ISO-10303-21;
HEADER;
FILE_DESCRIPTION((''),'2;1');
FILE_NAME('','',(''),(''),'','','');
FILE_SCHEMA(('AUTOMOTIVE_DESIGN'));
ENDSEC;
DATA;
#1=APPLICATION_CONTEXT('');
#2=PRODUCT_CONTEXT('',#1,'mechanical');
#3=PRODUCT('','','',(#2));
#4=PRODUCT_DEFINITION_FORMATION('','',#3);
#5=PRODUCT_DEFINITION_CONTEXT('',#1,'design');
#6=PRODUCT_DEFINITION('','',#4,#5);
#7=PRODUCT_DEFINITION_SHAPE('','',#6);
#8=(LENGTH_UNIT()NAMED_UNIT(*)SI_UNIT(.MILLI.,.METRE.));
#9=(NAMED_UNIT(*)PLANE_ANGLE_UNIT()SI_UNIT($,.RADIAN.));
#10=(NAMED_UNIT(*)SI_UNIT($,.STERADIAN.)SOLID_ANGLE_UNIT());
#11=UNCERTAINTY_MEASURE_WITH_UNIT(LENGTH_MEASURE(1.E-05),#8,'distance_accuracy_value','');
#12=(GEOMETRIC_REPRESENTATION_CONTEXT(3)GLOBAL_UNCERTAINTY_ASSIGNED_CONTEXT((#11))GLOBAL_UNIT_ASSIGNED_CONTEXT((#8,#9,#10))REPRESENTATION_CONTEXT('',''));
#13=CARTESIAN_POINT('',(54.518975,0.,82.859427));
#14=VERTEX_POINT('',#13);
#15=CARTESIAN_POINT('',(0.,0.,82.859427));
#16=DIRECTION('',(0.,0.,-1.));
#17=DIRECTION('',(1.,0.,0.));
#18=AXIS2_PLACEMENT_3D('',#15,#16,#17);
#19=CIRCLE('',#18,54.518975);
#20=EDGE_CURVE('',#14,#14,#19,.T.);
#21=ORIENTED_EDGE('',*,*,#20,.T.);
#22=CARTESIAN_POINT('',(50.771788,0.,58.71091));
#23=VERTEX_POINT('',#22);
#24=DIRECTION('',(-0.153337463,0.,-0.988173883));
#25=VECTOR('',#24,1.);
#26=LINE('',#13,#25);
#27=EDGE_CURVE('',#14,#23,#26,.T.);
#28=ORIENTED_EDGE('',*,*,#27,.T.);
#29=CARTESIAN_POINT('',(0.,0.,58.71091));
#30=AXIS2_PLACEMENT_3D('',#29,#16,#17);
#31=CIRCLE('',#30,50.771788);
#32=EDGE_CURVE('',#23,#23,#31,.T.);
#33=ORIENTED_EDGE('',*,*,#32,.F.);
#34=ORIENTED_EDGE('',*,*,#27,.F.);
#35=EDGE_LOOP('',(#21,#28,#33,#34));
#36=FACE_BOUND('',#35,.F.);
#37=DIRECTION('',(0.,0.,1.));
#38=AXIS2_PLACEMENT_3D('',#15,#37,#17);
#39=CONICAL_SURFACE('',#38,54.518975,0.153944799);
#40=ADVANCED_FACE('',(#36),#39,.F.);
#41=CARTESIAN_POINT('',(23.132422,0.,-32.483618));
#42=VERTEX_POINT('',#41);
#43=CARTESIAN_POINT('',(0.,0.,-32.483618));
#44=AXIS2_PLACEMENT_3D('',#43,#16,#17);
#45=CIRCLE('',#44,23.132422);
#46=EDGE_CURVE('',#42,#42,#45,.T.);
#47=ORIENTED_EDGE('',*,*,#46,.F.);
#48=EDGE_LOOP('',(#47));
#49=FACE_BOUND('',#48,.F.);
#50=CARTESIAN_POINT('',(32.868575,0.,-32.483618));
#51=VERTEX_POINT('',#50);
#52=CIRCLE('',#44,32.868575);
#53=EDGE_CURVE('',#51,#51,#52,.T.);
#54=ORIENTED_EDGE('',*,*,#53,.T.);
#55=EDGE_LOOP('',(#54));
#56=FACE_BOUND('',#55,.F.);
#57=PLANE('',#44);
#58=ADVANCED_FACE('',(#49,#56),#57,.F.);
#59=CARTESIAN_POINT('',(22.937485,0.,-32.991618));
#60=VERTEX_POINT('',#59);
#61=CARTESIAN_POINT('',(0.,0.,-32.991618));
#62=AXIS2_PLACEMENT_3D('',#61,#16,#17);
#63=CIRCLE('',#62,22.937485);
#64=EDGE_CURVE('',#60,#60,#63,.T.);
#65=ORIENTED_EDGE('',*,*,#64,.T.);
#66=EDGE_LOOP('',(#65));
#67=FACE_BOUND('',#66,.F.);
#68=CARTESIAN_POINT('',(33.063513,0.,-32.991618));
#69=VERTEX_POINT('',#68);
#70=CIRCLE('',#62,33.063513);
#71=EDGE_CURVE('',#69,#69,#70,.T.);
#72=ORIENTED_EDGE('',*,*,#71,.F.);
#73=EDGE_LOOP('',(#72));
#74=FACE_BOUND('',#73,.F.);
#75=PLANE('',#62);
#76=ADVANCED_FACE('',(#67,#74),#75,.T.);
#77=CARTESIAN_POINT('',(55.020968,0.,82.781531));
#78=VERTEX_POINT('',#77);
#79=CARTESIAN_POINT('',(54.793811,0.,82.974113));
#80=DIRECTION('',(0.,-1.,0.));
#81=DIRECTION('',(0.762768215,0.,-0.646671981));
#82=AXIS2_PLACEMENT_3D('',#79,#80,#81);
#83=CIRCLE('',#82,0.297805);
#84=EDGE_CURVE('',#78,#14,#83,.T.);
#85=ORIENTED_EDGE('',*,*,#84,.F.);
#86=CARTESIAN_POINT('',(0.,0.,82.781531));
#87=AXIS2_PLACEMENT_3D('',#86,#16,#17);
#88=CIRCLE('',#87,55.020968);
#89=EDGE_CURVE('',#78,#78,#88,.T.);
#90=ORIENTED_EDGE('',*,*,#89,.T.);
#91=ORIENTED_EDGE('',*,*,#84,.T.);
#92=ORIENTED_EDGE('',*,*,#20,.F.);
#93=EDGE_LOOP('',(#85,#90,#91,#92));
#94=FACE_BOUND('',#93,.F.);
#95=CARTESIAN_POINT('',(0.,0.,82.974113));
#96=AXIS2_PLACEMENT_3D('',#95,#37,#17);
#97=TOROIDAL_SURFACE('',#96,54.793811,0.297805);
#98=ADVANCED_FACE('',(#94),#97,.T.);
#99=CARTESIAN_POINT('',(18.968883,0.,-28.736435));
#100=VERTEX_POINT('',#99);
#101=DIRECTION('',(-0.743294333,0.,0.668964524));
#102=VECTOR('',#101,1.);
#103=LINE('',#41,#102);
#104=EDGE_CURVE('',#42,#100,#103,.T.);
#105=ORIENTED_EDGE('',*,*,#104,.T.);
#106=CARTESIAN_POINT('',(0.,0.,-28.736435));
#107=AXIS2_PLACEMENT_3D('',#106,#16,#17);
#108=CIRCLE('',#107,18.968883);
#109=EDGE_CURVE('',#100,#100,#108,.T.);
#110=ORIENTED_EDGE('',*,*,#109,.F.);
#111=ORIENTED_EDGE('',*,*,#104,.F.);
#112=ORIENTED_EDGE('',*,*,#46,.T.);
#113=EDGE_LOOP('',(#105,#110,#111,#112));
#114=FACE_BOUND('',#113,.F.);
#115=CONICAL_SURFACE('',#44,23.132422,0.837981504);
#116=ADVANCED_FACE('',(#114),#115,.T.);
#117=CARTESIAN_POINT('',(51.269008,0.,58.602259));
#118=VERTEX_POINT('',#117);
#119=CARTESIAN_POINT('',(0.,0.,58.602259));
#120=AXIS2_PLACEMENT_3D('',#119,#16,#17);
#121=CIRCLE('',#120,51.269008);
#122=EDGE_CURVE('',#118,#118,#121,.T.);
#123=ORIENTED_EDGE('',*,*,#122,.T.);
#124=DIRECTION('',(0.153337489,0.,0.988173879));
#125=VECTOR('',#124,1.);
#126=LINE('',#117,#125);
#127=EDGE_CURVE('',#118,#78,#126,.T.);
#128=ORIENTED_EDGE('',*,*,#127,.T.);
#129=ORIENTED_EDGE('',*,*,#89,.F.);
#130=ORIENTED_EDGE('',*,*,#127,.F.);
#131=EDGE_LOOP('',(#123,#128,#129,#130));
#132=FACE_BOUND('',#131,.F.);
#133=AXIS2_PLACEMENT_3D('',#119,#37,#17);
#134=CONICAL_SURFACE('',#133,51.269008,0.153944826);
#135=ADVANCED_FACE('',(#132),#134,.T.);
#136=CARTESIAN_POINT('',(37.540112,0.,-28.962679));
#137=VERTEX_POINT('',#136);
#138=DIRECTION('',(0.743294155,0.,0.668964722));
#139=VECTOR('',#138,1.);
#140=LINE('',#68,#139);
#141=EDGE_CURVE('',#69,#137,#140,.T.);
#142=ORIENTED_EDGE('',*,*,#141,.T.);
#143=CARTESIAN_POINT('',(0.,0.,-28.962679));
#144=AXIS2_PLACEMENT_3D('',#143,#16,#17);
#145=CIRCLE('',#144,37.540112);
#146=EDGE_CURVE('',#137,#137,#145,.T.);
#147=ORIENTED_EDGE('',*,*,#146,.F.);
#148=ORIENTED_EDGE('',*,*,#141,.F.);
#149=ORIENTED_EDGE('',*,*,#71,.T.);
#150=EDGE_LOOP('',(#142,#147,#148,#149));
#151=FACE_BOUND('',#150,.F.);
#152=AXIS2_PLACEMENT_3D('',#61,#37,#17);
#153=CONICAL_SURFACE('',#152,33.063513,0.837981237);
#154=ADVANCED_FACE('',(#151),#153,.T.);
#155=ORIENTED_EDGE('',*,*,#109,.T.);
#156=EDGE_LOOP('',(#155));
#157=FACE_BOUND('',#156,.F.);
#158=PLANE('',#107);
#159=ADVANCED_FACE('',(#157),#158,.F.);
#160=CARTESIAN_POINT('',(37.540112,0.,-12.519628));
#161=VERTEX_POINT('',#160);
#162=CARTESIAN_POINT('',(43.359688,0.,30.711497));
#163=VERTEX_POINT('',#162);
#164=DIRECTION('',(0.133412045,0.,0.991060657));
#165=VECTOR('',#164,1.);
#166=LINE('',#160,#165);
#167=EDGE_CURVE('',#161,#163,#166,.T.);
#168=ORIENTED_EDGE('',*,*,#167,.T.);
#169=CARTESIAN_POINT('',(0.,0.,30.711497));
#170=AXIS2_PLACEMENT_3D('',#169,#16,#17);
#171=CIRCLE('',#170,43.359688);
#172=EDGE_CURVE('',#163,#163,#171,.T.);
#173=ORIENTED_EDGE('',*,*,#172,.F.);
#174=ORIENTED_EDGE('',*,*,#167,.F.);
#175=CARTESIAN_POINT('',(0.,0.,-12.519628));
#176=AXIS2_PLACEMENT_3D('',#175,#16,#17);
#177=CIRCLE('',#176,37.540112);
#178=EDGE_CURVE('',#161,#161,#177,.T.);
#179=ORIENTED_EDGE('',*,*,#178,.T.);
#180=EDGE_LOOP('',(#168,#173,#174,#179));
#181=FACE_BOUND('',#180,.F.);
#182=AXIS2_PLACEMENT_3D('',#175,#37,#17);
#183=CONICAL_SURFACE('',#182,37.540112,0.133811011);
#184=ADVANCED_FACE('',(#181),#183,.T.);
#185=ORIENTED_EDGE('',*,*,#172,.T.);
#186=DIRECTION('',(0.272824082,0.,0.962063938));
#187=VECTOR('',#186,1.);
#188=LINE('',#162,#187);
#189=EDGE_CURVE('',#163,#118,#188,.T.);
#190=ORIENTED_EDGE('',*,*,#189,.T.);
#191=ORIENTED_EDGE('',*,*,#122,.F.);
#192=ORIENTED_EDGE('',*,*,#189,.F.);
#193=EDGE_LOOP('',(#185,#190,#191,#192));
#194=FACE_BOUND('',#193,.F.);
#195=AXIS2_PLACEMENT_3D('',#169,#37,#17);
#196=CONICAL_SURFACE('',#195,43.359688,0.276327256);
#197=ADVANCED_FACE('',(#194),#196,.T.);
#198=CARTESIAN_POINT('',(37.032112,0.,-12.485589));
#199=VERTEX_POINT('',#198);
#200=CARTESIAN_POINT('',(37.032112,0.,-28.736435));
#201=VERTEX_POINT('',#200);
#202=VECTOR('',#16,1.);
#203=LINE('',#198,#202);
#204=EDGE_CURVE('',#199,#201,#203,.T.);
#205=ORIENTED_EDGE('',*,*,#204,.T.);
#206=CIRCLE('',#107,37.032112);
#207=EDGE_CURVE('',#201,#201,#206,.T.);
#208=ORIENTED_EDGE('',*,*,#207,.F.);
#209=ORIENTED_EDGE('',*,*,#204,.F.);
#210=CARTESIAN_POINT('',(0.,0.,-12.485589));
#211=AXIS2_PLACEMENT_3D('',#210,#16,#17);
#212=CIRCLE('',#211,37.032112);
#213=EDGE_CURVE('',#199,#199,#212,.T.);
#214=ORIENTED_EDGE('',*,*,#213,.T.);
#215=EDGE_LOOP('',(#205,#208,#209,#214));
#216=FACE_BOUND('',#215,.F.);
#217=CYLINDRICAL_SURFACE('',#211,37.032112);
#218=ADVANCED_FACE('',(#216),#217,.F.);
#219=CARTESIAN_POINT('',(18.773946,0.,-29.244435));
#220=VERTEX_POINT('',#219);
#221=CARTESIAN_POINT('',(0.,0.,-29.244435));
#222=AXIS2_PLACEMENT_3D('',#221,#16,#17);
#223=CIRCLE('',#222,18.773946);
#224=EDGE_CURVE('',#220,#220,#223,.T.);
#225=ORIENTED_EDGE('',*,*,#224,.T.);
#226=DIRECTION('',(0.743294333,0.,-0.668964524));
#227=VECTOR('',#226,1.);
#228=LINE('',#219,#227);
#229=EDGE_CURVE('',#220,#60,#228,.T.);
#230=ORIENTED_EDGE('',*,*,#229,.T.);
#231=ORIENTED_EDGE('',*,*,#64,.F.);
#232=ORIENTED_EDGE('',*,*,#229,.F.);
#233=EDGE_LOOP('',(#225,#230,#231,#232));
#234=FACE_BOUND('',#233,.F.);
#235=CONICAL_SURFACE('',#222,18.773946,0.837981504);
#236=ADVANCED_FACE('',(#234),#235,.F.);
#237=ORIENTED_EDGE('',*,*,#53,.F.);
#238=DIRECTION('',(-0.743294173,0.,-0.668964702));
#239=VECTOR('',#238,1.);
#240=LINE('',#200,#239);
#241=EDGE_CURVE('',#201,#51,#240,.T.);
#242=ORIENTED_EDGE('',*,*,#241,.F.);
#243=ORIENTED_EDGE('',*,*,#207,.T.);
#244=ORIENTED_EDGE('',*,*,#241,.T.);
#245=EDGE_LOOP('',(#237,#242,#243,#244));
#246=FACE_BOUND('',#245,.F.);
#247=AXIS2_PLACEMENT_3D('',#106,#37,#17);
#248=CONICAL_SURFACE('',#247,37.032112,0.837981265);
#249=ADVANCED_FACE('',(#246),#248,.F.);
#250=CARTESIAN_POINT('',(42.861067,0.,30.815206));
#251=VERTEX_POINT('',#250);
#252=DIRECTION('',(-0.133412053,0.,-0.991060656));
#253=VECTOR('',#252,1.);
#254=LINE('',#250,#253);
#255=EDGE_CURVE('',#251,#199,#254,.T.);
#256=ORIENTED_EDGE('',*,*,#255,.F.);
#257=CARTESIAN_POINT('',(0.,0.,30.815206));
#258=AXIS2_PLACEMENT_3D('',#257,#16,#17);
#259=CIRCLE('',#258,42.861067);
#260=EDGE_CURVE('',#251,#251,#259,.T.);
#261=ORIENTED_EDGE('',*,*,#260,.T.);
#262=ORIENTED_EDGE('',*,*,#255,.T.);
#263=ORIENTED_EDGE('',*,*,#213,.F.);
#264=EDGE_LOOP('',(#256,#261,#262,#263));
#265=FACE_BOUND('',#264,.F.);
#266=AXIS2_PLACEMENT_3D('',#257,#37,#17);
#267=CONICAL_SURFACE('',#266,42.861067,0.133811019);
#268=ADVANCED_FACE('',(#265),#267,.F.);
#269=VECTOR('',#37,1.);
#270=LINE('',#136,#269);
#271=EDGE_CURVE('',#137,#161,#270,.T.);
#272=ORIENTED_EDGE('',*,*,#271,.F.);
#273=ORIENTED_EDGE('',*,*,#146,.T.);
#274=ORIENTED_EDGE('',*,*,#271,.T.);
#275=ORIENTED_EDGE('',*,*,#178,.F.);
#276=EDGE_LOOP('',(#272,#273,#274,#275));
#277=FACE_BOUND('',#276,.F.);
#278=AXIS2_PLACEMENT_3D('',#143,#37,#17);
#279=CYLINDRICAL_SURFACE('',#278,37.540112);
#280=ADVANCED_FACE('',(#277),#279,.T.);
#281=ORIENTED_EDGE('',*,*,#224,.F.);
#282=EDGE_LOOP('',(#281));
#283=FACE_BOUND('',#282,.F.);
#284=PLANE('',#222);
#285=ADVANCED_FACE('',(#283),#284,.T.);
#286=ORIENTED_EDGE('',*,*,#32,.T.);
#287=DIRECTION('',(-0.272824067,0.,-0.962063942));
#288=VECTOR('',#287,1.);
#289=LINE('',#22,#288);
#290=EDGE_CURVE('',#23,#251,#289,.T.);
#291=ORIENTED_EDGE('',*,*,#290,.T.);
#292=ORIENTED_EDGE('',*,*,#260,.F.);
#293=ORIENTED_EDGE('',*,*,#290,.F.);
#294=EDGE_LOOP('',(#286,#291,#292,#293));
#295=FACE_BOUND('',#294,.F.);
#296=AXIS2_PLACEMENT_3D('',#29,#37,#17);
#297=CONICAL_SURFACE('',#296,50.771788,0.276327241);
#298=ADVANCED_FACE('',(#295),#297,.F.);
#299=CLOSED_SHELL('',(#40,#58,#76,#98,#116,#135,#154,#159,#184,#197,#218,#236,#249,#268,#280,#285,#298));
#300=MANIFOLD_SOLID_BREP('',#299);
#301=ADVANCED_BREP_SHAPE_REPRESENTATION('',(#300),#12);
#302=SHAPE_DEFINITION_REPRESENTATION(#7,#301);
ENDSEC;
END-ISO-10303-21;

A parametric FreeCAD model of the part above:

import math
import FreeCAD as App
import Part
import Sketcher

V = App.Vector
Q = App.Units.Quantity

doc = App.newDocument("Part")
body = doc.addObject("PartDesign::Body", "Body")

# Sketch on XZ plane
sketch1 = body.newObject("Sketcher::SketchObject", "Sketch")
sketch1.AttachmentSupport = (doc.getObject("XZ_Plane"), [""])
sketch1.MapMode = "FlatFace"
sketch1.addGeometry([
    Part.LineSegment(V(18.97, -28.74, 0), V(0, -28.74, 0)),  # 0
    Part.LineSegment(V(0, -28.74, 0), V(0, -29.24, 0)),  # 1
    Part.LineSegment(V(0, -29.24, 0), V(18.77, -29.24, 0)),  # 2
    Part.LineSegment(V(18.77, -29.24, 0), V(22.94, -32.99, 0)),  # 3
    Part.LineSegment(V(22.94, -32.99, 0), V(33.06, -32.99, 0)),  # 4
    Part.LineSegment(V(33.06, -32.99, 0), V(37.54, -28.96, 0)),  # 5
    Part.LineSegment(V(37.54, -28.96, 0), V(37.54, -12.52, 0)),  # 6
    Part.LineSegment(V(37.54, -12.52, 0), V(43.36, 30.71, 0)),  # 7
    Part.LineSegment(V(43.36, 30.71, 0), V(51.27, 58.6, 0)),  # 8
    Part.LineSegment(V(51.27, 58.6, 0), V(55.02, 82.78, 0)),  # 9
    Part.ArcOfCircle(Part.Circle(V(54.79, 82.97, 0), V(0, 0, 1), 0.3), math.radians(-40), math.radians(203)),  # 10
    Part.LineSegment(V(54.52, 82.86, 0), V(50.77, 58.71, 0)),  # 11
    Part.LineSegment(V(50.77, 58.71, 0), V(42.86, 30.82, 0)),  # 12
    Part.LineSegment(V(42.86, 30.82, 0), V(37.03, -12.49, 0)),  # 13
    Part.LineSegment(V(37.03, -12.49, 0), V(37.03, -28.74, 0)),  # 14
    Part.LineSegment(V(37.03, -28.74, 0), V(32.87, -32.48, 0)),  # 15
    Part.LineSegment(V(32.87, -32.48, 0), V(23.13, -32.48, 0)),  # 16
    Part.LineSegment(V(23.13, -32.48, 0), V(18.97, -28.74, 0)),  # 17
], False)
sketch1.addConstraint([
    Sketcher.Constraint("Coincident", 0, 2, 1, 1),
    Sketcher.Constraint("Coincident", 1, 2, 2, 1),
    Sketcher.Constraint("Coincident", 2, 2, 3, 1),
    Sketcher.Constraint("Coincident", 3, 2, 4, 1),
    Sketcher.Constraint("Coincident", 4, 2, 5, 1),
    Sketcher.Constraint("Coincident", 5, 2, 6, 1),
    Sketcher.Constraint("Coincident", 6, 2, 7, 1),
    Sketcher.Constraint("Coincident", 7, 2, 8, 1),
    Sketcher.Constraint("Coincident", 8, 2, 9, 1),
    Sketcher.Constraint("Coincident", 9, 2, 10, 1),
    Sketcher.Constraint("Coincident", 10, 2, 11, 1),
    Sketcher.Constraint("Coincident", 11, 2, 12, 1),
    Sketcher.Constraint("Coincident", 12, 2, 13, 1),
    Sketcher.Constraint("Coincident", 13, 2, 14, 1),
    Sketcher.Constraint("Coincident", 14, 2, 15, 1),
    Sketcher.Constraint("Coincident", 15, 2, 16, 1),
    Sketcher.Constraint("Coincident", 16, 2, 17, 1),
    Sketcher.Constraint("Coincident", 17, 2, 0, 1),
    Sketcher.Constraint("Horizontal", 0),
    Sketcher.Constraint("Vertical", 1),
    Sketcher.Constraint("Horizontal", 2),
    Sketcher.Constraint("Horizontal", 4),
    Sketcher.Constraint("Vertical", 6),
    Sketcher.Constraint("Vertical", 14),
    Sketcher.Constraint("Horizontal", 16),
    Sketcher.Constraint("PointOnObject", 0, 2, -2),
    Sketcher.Constraint("Parallel", 9, 11),
    Sketcher.Constraint("Parallel", 8, 12),
    Sketcher.Constraint("Parallel", 7, 13),
    Sketcher.Constraint("Parallel", 5, 15),
    Sketcher.Constraint("Parallel", 3, 17),
    Sketcher.Constraint("Horizontal", 0, 2, 14, 2),
    Sketcher.Constraint("Equal", 3, 15),
    Sketcher.Constraint("Equal", 15, 17),
    Sketcher.Constraint("DistanceY", 1, 2, 1, 1, Q("0.02 in")),
    Sketcher.Constraint("DistanceX", 13, 2, 6, 2, Q("0.02 in")),
    Sketcher.Constraint("Radius", 10, 0.297805),
    Sketcher.Constraint("DistanceX", 4, 1, 4, 2, 10.126028),
    Sketcher.Constraint("DistanceY", 6, 1, 6, 2, 16.443051),
    Sketcher.Constraint("DistanceX", 4, 2, 10, 3, 21.730298),
    Sketcher.Constraint("DistanceX", 4, 2, 5, 2, 4.476599),
    Sketcher.Constraint("DistanceX", 7, 2, 11, 2, 7.4121),
    Sketcher.Constraint("DistanceX", 17, 2, 3, 2, 3.968602),
    Sketcher.Constraint("Distance", 7, 43.621069),
    Sketcher.Constraint("Distance", 8, 28.990549),
    Sketcher.Constraint("Distance", 9, 24.468641),
    Sketcher.Constraint("DistanceX", 0, 2, 0, 1, 18.968883),
    Sketcher.Constraint("DistanceX", 2, 1, 2, 2, 18.773946),
    Sketcher.Constraint("DistanceY", 14, 2, 14, 1, 16.250846),
    Sketcher.Constraint("DistanceY", 3, 2, -1, 1, 32.991618),
    Sketcher.Constraint("DistanceY", 5, 2, -1, 1, 28.962679),
    Sketcher.Constraint("DistanceY", -1, 1, 8, 2, 58.602259),
    Sketcher.Constraint("DistanceX", -1, 1, 9, 2, 55.020968),
    Sketcher.Constraint("DistanceY", -1, 1, 9, 2, 82.781531),
    Sketcher.Constraint("DistanceY", -1, 1, 11, 2, 58.71091),
])
revolution = body.newObject("PartDesign::Revolution", "Revolution")
revolution.Profile = sketch1
revolution.ReferenceAxis = (sketch1, ["V_Axis"])
revolution.Angle = 360

doc.recompute()
